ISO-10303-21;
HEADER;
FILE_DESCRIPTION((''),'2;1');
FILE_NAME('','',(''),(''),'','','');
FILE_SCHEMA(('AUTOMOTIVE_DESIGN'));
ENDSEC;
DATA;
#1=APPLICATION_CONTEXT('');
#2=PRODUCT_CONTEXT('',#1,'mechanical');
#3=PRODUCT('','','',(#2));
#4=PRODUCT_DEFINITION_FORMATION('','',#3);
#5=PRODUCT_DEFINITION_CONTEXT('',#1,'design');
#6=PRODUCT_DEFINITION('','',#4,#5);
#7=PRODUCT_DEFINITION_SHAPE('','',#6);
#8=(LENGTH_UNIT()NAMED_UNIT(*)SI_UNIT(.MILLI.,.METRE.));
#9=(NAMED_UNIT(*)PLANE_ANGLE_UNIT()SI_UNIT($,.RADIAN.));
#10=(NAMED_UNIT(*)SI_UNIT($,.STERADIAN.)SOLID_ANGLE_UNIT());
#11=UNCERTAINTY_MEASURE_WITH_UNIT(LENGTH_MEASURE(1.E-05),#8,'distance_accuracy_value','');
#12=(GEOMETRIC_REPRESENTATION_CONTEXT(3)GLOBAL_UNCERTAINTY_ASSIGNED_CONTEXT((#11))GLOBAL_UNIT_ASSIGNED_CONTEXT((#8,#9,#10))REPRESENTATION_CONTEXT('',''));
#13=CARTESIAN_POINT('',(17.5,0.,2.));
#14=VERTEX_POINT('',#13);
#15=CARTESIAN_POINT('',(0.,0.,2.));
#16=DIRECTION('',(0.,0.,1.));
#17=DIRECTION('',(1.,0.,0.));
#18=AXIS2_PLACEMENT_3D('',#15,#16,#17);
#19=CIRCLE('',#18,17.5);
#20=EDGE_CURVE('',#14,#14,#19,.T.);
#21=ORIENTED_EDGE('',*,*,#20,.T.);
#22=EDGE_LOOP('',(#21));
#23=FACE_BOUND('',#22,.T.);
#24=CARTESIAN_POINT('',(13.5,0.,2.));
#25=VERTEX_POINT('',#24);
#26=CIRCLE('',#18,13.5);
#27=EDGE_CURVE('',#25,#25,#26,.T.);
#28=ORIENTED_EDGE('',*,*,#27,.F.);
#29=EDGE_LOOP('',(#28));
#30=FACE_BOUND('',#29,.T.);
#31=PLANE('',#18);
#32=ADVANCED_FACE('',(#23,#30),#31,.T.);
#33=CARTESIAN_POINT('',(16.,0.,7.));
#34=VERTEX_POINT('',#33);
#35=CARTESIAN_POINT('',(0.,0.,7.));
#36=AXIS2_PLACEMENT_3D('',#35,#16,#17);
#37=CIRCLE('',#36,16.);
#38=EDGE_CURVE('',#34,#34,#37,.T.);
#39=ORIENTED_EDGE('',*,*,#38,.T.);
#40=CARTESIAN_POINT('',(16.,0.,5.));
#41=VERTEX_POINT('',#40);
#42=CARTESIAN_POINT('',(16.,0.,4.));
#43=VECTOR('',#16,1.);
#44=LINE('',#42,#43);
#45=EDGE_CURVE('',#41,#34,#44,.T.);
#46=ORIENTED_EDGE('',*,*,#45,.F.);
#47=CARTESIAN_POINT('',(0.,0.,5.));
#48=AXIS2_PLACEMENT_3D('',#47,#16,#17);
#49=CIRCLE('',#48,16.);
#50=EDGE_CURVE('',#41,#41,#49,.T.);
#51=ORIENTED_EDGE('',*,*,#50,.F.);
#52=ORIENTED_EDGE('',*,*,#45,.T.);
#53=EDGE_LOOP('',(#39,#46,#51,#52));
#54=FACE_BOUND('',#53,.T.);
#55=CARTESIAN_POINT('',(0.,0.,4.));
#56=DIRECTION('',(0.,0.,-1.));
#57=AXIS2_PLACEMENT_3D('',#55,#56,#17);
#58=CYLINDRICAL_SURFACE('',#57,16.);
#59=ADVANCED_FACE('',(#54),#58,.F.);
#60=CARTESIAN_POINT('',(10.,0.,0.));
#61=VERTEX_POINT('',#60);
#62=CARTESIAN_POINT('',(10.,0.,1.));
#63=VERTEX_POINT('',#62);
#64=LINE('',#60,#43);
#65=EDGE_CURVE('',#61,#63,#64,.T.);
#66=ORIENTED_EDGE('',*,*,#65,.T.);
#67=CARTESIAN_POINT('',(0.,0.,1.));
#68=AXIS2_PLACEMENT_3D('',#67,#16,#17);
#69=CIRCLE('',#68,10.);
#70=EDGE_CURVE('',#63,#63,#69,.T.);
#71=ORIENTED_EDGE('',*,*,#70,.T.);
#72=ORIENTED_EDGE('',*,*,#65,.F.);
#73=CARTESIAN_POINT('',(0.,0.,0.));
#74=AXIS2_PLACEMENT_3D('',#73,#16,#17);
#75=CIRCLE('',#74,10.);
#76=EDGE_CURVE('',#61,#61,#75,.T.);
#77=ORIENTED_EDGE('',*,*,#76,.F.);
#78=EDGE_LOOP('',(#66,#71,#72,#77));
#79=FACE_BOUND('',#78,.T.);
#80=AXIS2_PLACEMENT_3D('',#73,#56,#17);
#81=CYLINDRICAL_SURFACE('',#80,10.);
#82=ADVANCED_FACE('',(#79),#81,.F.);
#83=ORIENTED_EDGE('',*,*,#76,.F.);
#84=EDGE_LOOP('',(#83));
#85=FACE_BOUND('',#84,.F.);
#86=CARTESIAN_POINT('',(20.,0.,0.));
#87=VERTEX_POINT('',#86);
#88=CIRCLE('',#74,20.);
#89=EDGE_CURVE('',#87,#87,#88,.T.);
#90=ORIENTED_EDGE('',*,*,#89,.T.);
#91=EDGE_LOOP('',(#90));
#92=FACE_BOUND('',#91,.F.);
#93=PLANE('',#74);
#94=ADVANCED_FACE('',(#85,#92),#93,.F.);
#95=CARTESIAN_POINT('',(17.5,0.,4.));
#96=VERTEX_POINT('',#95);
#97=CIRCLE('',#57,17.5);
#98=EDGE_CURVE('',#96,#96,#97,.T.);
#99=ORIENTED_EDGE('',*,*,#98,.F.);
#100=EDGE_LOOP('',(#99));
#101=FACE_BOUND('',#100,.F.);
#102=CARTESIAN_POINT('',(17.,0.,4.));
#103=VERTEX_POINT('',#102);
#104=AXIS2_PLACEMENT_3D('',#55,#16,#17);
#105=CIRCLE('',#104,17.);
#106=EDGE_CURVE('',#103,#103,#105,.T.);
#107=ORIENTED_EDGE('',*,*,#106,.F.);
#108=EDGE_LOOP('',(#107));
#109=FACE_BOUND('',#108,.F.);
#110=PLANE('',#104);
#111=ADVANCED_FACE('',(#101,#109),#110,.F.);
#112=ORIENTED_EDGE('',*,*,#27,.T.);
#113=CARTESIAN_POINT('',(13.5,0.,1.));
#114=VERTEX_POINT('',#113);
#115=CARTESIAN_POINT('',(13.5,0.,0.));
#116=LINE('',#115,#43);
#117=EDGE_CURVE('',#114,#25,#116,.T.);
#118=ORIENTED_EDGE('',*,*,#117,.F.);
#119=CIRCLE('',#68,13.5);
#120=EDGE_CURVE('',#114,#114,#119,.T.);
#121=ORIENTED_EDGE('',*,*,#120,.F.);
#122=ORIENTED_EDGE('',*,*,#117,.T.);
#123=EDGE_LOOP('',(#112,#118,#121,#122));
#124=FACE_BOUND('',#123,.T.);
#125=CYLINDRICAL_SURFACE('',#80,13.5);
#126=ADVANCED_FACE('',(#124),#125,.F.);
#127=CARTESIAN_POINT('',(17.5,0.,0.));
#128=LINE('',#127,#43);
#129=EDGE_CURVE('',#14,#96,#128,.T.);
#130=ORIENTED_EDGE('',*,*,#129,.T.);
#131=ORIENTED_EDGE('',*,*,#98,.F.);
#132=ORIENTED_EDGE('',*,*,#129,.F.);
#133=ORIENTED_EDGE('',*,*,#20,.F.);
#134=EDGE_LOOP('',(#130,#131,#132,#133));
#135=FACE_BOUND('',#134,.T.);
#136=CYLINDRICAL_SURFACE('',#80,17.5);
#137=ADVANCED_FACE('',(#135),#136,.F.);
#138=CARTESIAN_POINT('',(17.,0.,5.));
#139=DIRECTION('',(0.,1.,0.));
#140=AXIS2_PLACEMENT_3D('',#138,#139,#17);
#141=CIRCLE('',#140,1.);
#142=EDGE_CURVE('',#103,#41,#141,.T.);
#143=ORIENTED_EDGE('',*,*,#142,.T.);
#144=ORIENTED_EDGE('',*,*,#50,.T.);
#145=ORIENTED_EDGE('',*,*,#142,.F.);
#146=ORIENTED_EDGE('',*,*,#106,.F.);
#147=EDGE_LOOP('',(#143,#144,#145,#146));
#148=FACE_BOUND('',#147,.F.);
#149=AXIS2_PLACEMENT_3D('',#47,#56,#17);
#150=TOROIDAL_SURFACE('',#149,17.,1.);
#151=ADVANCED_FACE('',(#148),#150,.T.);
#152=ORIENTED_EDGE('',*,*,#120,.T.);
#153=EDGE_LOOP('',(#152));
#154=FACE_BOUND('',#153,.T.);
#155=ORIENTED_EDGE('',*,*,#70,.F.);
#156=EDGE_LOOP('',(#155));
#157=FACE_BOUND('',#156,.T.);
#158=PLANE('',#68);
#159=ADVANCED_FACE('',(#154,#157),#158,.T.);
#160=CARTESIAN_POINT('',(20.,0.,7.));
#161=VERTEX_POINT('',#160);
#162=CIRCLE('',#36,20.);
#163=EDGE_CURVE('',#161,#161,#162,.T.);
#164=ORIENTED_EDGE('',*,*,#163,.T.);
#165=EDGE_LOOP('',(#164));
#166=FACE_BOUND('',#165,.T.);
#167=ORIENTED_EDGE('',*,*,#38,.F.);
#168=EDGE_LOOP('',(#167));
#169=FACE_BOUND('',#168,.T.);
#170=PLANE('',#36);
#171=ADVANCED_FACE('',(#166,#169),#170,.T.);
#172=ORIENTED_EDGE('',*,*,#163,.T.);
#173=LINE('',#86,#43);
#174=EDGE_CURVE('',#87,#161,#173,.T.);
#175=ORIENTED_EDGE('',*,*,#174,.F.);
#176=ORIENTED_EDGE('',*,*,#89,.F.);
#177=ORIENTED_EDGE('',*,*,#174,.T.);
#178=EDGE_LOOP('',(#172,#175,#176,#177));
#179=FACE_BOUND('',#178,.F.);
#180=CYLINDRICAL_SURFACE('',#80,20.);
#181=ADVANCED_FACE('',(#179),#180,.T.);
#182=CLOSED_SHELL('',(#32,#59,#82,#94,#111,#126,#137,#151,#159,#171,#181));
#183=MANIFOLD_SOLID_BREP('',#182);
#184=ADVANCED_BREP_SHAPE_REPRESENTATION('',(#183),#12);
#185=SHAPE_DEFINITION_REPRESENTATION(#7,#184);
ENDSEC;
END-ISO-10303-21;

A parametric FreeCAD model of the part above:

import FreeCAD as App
import Part
import Sketcher
Q = App.Units.Quantity


def edges_at(feature, points):
    """Names of the edges that pass closest to the given points."""
    edges = feature.Shape.Edges
    near = lambda p: min(range(len(edges)), key=lambda i: edges[i].distToShape(Part.Vertex(*p))[0])
    return sorted({f"Edge{near(p) + 1}" for p in points})

doc = App.newDocument("Part")
body = doc.addObject("PartDesign::Body", "Body")

# Sketch on XY plane
sketch1 = body.newObject("Sketcher::SketchObject", "Sketch")
sketch1.AttachmentSupport = (doc.getObject("XY_Plane"), [""])
sketch1.MapMode = "FlatFace"
sketch1.addGeometry(Part.Circle(App.Vector(0, 0, 0), App.Vector(0, 0, 1), 14), False)
sketch1.addGeometry(Part.Circle(App.Vector(0, 0, 0), App.Vector(0, 0, 1), 10), False)
sketch1.addConstraint(Sketcher.Constraint("Coincident", 0, 3, -1, 1))
sketch1.addConstraint(Sketcher.Constraint("Coincident", 1, 3, -1, 1))
sketch1.addConstraint(Sketcher.Constraint("Diameter", 0, Q("27 mm")))
sketch1.addConstraint(Sketcher.Constraint("Diameter", 1, Q("20 mm")))
pad1 = body.newObject("PartDesign::Pad", "Pad")
pad1.Profile = sketch1
pad1.Length = 1

# Sketch on XY plane
sketch2 = body.newObject("Sketcher::SketchObject", "Sketch001")
sketch2.AttachmentSupport = (doc.getObject("XY_Plane"), [""])
sketch2.MapMode = "FlatFace"
sketch2.addGeometry(Part.Circle(App.Vector(0, 0, 0), App.Vector(0, 0, 1), 18), False)
sketch2.addGeometry(Part.Circle(App.Vector(0, 0, 0), App.Vector(0, 0, 1), 14), False)
sketch2.addConstraint(Sketcher.Constraint("Coincident", 0, 3, -1, 1))
sketch2.addConstraint(Sketcher.Constraint("Coincident", 1, 3, -1, 1))
sketch2.addConstraint(Sketcher.Constraint("Diameter", 0, Q("35 mm")))
sketch2.addConstraint(Sketcher.Constraint("Diameter", 1, Q("27 mm")))
pad2 = body.newObject("PartDesign::Pad", "Pad001")
pad2.Profile = sketch2
pad2.Length = 2

# Sketch on XY plane
sketch3 = body.newObject("Sketcher::SketchObject", "Sketch002")
sketch3.AttachmentSupport = (doc.getObject("XY_Plane"), [""])
sketch3.MapMode = "FlatFace"
sketch3.addGeometry(Part.Circle(App.Vector(0, 0, 0), App.Vector(0, 0, 1), 20), False)
sketch3.addGeometry(Part.Circle(App.Vector(0, 0, 0), App.Vector(0, 0, 1), 18), False)
sketch3.addConstraint(Sketcher.Constraint("Coincident", 0, 3, -1, 1))
sketch3.addConstraint(Sketcher.Constraint("Coincident", 1, 3, -1, 1))
sketch3.addConstraint(Sketcher.Constraint("Diameter", 0, Q("40 mm")))
sketch3.addConstraint(Sketcher.Constraint("Diameter", 1, Q("35 mm")))
pad3 = body.newObject("PartDesign::Pad", "Pad002")
pad3.Profile = sketch3
pad3.Length = 7

# Sketch on XY plane
sketch4 = body.newObject("Sketcher::SketchObject", "Sketch003")
sketch4.AttachmentSupport = (doc.getObject("XY_Plane"), [""])
sketch4.MapMode = "FlatFace"
sketch4.AttachmentOffset = App.Placement(App.Vector(0, 0, 4), App.Rotation())
sketch4.addGeometry(Part.Circle(App.Vector(0, 0, 0), App.Vector(0, 0, 1), 20), False)
sketch4.addGeometry(Part.Circle(App.Vector(0, 0, 0), App.Vector(0, 0, 1), 16), False)
sketch4.addConstraint(Sketcher.Constraint("Coincident", 0, 3, -1, 1))
sketch4.addConstraint(Sketcher.Constraint("Coincident", 1, 3, -1, 1))
sketch4.addConstraint(Sketcher.Constraint("Diameter", 0, Q("40 mm")))
sketch4.addConstraint(Sketcher.Constraint("Diameter", 1, Q("32 mm")))
pad4 = body.newObject("PartDesign::Pad", "Pad003")
pad4.Profile = sketch4
pad4.Length = 3
doc.recompute()

fillet = body.newObject("PartDesign::Fillet", "Fillet")
fillet.Base = (pad4, edges_at(pad4, [(-16, 0, 4)]))
fillet.Radius = 1

doc.recompute()
